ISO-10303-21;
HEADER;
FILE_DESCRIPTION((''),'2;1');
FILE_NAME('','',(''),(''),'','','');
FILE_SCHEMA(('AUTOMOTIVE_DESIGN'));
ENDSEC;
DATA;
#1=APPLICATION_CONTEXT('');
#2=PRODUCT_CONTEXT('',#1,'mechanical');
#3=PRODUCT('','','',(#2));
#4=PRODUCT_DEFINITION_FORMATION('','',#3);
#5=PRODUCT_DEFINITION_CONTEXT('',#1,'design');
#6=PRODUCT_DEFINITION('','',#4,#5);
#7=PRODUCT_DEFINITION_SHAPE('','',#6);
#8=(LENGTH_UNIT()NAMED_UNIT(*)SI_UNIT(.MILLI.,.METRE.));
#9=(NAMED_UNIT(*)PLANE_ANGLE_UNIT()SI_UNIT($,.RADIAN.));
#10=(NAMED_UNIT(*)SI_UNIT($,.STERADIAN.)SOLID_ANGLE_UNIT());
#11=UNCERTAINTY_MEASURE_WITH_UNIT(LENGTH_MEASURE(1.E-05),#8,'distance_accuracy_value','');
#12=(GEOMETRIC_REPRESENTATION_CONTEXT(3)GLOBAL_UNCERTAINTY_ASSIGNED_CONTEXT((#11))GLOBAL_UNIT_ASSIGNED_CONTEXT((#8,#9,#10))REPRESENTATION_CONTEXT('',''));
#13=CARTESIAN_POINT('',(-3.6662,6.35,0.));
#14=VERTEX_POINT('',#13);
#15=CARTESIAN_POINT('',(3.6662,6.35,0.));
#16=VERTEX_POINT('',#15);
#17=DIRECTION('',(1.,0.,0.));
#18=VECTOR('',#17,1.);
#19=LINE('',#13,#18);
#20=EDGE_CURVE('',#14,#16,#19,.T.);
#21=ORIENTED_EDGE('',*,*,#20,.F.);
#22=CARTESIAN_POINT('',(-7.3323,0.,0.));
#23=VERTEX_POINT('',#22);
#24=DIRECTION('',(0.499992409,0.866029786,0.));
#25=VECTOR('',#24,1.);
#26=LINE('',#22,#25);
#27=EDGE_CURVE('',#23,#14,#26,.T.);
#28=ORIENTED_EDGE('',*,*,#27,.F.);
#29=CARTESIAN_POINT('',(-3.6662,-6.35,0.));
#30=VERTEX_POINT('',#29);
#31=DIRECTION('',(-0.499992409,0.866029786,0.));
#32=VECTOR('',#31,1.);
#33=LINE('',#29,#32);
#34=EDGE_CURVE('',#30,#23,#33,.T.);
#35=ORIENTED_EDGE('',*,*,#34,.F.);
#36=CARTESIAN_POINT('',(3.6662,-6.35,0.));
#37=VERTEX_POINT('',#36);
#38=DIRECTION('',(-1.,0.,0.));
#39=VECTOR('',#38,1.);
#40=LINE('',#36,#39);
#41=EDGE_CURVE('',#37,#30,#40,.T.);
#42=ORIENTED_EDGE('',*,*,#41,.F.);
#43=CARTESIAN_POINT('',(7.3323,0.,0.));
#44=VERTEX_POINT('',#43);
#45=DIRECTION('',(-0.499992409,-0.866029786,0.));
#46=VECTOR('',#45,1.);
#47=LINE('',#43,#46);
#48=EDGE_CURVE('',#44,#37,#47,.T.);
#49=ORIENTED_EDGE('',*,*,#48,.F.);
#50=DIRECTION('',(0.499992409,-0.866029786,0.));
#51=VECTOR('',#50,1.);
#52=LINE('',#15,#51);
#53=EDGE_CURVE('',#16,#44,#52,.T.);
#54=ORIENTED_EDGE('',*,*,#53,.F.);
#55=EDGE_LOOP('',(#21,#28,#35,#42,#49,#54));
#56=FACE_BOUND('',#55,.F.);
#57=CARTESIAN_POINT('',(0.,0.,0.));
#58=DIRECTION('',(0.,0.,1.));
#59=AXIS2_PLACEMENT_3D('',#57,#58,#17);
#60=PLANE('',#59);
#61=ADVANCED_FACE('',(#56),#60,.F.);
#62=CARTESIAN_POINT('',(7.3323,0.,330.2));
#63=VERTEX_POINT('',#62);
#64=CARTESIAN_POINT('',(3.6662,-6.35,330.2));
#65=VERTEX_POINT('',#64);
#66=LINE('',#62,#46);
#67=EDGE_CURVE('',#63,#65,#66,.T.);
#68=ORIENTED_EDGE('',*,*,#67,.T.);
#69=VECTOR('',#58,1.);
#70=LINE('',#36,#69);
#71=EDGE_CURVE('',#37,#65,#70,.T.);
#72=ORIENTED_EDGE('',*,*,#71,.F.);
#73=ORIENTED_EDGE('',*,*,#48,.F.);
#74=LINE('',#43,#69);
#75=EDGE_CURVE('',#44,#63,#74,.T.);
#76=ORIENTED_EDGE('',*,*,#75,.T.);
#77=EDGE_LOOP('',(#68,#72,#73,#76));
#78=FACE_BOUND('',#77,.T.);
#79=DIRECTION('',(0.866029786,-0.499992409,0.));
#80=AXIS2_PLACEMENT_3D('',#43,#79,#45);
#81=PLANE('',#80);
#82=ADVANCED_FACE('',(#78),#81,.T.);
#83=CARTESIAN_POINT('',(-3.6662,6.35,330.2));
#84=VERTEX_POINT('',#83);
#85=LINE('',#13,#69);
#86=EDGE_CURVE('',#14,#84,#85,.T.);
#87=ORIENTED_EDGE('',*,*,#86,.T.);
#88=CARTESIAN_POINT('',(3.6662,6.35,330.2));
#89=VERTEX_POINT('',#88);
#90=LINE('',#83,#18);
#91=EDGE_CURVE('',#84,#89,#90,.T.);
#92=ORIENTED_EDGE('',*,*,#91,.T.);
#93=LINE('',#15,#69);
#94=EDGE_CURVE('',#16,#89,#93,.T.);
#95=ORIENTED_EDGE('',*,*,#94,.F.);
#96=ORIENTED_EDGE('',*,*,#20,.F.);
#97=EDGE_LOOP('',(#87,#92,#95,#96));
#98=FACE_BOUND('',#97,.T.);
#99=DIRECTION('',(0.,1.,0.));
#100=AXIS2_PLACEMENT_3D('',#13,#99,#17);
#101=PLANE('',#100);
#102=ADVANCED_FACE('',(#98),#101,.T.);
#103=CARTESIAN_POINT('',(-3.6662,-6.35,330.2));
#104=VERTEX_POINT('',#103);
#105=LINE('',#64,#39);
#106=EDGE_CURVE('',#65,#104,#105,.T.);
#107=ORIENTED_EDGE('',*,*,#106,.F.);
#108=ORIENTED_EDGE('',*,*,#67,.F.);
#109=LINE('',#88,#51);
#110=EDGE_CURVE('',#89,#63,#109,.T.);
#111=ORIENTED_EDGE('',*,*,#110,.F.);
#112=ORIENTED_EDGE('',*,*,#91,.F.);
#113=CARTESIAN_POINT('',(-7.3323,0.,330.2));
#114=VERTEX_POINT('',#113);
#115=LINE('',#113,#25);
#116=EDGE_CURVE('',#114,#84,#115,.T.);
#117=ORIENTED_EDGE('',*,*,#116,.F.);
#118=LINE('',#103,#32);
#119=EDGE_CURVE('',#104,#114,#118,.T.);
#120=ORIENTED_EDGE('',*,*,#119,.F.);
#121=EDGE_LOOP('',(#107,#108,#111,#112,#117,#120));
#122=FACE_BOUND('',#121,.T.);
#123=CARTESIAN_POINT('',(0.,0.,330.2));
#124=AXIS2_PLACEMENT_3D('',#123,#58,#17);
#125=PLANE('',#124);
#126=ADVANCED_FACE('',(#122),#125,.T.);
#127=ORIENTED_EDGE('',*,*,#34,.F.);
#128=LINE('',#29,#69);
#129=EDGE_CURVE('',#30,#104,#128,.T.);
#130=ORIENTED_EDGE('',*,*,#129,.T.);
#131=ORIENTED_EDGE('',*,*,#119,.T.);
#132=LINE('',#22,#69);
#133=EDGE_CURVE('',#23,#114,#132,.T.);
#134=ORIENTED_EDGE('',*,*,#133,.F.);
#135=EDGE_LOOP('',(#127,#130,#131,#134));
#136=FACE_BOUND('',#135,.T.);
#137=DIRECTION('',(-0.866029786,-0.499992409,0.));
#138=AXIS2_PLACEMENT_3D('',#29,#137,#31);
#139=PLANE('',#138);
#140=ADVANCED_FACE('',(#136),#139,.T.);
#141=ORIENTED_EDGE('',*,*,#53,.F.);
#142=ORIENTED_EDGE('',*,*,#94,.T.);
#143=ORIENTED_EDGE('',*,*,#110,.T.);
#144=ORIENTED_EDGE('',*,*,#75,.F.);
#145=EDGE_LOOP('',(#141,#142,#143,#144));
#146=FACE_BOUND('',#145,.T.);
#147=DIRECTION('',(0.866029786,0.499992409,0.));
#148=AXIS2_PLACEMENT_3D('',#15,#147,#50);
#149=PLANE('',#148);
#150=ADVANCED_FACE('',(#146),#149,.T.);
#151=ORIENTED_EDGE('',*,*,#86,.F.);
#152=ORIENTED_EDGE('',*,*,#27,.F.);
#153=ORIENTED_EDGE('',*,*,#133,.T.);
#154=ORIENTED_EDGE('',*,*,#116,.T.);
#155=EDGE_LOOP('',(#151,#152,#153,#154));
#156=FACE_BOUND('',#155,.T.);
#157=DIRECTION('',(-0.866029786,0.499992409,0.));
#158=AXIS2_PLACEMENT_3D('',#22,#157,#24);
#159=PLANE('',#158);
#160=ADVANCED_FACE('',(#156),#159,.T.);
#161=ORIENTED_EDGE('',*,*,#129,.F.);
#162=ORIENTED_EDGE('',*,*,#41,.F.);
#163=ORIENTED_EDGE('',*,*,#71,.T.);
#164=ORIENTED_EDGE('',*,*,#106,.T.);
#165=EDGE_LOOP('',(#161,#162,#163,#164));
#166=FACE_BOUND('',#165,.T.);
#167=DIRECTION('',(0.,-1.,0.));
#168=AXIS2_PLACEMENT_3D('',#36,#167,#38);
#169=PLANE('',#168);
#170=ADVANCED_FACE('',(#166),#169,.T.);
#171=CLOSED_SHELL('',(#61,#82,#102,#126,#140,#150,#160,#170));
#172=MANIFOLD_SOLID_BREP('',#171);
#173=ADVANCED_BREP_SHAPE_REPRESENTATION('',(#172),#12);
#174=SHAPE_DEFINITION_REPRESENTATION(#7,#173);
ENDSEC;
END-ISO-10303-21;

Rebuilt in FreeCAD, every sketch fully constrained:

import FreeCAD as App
import Part
import Sketcher

V = App.Vector
Q = App.Units.Quantity


def add_polygon(sketch, points):
    """Adds a closed chain of lines whose ends are joined by coincident constraints."""
    first, n = sketch.GeometryCount, len(points)
    for a, b in zip(points, points[1:] + points[:1]):
        sketch.addGeometry(Part.LineSegment(App.Vector(*a, 0), App.Vector(*b, 0)), False)
    for i in range(n):
        sketch.addConstraint(Sketcher.Constraint("Coincident", first + i, 2, first + (i + 1) % n, 1))

doc = App.newDocument("Part")
body = doc.addObject("PartDesign::Body", "Body")

sketch1 = doc.addObject("Sketcher::SketchObject", "Sketch")
body.addObject(sketch1)
sketch1.AttachmentSupport = (doc.XY_Plane, [""])
sketch1.MapMode = "FlatFace"
add_polygon(sketch1, [(7, 0), (4, 6), (-4, 6), (-7, 0), (-4, -6), (4, -6)])
sketch1.addConstraint([
    Sketcher.Constraint("Horizontal", 1),
    Sketcher.Constraint("Horizontal", 4),
    Sketcher.Constraint("Symmetric", 0, 2, 3, 2, -1, 1),
    Sketcher.Constraint("Symmetric", 2, 2, 5, 2, -1, 1),
    Sketcher.Constraint("PointOnObject", 2, 2, -1),
    Sketcher.Constraint("Parallel", 2, 5),
    Sketcher.Constraint("Vertical", 1, 2, 3, 2),
    Sketcher.Constraint("DistanceY", 3, 2, 1, 2, Q("0.5 in")),
    Sketcher.Constraint("Angle", 0, Q("119.9995 deg")),
    Sketcher.Constraint("DistanceX", 2, 2, 0, 2, Q("0.433 in")),
])
pad1 = doc.addObject("PartDesign::Pad", "Pad")
body.addObject(pad1)
pad1.Profile = sketch1
pad1.Length = Q("13 in")

doc.recompute()
